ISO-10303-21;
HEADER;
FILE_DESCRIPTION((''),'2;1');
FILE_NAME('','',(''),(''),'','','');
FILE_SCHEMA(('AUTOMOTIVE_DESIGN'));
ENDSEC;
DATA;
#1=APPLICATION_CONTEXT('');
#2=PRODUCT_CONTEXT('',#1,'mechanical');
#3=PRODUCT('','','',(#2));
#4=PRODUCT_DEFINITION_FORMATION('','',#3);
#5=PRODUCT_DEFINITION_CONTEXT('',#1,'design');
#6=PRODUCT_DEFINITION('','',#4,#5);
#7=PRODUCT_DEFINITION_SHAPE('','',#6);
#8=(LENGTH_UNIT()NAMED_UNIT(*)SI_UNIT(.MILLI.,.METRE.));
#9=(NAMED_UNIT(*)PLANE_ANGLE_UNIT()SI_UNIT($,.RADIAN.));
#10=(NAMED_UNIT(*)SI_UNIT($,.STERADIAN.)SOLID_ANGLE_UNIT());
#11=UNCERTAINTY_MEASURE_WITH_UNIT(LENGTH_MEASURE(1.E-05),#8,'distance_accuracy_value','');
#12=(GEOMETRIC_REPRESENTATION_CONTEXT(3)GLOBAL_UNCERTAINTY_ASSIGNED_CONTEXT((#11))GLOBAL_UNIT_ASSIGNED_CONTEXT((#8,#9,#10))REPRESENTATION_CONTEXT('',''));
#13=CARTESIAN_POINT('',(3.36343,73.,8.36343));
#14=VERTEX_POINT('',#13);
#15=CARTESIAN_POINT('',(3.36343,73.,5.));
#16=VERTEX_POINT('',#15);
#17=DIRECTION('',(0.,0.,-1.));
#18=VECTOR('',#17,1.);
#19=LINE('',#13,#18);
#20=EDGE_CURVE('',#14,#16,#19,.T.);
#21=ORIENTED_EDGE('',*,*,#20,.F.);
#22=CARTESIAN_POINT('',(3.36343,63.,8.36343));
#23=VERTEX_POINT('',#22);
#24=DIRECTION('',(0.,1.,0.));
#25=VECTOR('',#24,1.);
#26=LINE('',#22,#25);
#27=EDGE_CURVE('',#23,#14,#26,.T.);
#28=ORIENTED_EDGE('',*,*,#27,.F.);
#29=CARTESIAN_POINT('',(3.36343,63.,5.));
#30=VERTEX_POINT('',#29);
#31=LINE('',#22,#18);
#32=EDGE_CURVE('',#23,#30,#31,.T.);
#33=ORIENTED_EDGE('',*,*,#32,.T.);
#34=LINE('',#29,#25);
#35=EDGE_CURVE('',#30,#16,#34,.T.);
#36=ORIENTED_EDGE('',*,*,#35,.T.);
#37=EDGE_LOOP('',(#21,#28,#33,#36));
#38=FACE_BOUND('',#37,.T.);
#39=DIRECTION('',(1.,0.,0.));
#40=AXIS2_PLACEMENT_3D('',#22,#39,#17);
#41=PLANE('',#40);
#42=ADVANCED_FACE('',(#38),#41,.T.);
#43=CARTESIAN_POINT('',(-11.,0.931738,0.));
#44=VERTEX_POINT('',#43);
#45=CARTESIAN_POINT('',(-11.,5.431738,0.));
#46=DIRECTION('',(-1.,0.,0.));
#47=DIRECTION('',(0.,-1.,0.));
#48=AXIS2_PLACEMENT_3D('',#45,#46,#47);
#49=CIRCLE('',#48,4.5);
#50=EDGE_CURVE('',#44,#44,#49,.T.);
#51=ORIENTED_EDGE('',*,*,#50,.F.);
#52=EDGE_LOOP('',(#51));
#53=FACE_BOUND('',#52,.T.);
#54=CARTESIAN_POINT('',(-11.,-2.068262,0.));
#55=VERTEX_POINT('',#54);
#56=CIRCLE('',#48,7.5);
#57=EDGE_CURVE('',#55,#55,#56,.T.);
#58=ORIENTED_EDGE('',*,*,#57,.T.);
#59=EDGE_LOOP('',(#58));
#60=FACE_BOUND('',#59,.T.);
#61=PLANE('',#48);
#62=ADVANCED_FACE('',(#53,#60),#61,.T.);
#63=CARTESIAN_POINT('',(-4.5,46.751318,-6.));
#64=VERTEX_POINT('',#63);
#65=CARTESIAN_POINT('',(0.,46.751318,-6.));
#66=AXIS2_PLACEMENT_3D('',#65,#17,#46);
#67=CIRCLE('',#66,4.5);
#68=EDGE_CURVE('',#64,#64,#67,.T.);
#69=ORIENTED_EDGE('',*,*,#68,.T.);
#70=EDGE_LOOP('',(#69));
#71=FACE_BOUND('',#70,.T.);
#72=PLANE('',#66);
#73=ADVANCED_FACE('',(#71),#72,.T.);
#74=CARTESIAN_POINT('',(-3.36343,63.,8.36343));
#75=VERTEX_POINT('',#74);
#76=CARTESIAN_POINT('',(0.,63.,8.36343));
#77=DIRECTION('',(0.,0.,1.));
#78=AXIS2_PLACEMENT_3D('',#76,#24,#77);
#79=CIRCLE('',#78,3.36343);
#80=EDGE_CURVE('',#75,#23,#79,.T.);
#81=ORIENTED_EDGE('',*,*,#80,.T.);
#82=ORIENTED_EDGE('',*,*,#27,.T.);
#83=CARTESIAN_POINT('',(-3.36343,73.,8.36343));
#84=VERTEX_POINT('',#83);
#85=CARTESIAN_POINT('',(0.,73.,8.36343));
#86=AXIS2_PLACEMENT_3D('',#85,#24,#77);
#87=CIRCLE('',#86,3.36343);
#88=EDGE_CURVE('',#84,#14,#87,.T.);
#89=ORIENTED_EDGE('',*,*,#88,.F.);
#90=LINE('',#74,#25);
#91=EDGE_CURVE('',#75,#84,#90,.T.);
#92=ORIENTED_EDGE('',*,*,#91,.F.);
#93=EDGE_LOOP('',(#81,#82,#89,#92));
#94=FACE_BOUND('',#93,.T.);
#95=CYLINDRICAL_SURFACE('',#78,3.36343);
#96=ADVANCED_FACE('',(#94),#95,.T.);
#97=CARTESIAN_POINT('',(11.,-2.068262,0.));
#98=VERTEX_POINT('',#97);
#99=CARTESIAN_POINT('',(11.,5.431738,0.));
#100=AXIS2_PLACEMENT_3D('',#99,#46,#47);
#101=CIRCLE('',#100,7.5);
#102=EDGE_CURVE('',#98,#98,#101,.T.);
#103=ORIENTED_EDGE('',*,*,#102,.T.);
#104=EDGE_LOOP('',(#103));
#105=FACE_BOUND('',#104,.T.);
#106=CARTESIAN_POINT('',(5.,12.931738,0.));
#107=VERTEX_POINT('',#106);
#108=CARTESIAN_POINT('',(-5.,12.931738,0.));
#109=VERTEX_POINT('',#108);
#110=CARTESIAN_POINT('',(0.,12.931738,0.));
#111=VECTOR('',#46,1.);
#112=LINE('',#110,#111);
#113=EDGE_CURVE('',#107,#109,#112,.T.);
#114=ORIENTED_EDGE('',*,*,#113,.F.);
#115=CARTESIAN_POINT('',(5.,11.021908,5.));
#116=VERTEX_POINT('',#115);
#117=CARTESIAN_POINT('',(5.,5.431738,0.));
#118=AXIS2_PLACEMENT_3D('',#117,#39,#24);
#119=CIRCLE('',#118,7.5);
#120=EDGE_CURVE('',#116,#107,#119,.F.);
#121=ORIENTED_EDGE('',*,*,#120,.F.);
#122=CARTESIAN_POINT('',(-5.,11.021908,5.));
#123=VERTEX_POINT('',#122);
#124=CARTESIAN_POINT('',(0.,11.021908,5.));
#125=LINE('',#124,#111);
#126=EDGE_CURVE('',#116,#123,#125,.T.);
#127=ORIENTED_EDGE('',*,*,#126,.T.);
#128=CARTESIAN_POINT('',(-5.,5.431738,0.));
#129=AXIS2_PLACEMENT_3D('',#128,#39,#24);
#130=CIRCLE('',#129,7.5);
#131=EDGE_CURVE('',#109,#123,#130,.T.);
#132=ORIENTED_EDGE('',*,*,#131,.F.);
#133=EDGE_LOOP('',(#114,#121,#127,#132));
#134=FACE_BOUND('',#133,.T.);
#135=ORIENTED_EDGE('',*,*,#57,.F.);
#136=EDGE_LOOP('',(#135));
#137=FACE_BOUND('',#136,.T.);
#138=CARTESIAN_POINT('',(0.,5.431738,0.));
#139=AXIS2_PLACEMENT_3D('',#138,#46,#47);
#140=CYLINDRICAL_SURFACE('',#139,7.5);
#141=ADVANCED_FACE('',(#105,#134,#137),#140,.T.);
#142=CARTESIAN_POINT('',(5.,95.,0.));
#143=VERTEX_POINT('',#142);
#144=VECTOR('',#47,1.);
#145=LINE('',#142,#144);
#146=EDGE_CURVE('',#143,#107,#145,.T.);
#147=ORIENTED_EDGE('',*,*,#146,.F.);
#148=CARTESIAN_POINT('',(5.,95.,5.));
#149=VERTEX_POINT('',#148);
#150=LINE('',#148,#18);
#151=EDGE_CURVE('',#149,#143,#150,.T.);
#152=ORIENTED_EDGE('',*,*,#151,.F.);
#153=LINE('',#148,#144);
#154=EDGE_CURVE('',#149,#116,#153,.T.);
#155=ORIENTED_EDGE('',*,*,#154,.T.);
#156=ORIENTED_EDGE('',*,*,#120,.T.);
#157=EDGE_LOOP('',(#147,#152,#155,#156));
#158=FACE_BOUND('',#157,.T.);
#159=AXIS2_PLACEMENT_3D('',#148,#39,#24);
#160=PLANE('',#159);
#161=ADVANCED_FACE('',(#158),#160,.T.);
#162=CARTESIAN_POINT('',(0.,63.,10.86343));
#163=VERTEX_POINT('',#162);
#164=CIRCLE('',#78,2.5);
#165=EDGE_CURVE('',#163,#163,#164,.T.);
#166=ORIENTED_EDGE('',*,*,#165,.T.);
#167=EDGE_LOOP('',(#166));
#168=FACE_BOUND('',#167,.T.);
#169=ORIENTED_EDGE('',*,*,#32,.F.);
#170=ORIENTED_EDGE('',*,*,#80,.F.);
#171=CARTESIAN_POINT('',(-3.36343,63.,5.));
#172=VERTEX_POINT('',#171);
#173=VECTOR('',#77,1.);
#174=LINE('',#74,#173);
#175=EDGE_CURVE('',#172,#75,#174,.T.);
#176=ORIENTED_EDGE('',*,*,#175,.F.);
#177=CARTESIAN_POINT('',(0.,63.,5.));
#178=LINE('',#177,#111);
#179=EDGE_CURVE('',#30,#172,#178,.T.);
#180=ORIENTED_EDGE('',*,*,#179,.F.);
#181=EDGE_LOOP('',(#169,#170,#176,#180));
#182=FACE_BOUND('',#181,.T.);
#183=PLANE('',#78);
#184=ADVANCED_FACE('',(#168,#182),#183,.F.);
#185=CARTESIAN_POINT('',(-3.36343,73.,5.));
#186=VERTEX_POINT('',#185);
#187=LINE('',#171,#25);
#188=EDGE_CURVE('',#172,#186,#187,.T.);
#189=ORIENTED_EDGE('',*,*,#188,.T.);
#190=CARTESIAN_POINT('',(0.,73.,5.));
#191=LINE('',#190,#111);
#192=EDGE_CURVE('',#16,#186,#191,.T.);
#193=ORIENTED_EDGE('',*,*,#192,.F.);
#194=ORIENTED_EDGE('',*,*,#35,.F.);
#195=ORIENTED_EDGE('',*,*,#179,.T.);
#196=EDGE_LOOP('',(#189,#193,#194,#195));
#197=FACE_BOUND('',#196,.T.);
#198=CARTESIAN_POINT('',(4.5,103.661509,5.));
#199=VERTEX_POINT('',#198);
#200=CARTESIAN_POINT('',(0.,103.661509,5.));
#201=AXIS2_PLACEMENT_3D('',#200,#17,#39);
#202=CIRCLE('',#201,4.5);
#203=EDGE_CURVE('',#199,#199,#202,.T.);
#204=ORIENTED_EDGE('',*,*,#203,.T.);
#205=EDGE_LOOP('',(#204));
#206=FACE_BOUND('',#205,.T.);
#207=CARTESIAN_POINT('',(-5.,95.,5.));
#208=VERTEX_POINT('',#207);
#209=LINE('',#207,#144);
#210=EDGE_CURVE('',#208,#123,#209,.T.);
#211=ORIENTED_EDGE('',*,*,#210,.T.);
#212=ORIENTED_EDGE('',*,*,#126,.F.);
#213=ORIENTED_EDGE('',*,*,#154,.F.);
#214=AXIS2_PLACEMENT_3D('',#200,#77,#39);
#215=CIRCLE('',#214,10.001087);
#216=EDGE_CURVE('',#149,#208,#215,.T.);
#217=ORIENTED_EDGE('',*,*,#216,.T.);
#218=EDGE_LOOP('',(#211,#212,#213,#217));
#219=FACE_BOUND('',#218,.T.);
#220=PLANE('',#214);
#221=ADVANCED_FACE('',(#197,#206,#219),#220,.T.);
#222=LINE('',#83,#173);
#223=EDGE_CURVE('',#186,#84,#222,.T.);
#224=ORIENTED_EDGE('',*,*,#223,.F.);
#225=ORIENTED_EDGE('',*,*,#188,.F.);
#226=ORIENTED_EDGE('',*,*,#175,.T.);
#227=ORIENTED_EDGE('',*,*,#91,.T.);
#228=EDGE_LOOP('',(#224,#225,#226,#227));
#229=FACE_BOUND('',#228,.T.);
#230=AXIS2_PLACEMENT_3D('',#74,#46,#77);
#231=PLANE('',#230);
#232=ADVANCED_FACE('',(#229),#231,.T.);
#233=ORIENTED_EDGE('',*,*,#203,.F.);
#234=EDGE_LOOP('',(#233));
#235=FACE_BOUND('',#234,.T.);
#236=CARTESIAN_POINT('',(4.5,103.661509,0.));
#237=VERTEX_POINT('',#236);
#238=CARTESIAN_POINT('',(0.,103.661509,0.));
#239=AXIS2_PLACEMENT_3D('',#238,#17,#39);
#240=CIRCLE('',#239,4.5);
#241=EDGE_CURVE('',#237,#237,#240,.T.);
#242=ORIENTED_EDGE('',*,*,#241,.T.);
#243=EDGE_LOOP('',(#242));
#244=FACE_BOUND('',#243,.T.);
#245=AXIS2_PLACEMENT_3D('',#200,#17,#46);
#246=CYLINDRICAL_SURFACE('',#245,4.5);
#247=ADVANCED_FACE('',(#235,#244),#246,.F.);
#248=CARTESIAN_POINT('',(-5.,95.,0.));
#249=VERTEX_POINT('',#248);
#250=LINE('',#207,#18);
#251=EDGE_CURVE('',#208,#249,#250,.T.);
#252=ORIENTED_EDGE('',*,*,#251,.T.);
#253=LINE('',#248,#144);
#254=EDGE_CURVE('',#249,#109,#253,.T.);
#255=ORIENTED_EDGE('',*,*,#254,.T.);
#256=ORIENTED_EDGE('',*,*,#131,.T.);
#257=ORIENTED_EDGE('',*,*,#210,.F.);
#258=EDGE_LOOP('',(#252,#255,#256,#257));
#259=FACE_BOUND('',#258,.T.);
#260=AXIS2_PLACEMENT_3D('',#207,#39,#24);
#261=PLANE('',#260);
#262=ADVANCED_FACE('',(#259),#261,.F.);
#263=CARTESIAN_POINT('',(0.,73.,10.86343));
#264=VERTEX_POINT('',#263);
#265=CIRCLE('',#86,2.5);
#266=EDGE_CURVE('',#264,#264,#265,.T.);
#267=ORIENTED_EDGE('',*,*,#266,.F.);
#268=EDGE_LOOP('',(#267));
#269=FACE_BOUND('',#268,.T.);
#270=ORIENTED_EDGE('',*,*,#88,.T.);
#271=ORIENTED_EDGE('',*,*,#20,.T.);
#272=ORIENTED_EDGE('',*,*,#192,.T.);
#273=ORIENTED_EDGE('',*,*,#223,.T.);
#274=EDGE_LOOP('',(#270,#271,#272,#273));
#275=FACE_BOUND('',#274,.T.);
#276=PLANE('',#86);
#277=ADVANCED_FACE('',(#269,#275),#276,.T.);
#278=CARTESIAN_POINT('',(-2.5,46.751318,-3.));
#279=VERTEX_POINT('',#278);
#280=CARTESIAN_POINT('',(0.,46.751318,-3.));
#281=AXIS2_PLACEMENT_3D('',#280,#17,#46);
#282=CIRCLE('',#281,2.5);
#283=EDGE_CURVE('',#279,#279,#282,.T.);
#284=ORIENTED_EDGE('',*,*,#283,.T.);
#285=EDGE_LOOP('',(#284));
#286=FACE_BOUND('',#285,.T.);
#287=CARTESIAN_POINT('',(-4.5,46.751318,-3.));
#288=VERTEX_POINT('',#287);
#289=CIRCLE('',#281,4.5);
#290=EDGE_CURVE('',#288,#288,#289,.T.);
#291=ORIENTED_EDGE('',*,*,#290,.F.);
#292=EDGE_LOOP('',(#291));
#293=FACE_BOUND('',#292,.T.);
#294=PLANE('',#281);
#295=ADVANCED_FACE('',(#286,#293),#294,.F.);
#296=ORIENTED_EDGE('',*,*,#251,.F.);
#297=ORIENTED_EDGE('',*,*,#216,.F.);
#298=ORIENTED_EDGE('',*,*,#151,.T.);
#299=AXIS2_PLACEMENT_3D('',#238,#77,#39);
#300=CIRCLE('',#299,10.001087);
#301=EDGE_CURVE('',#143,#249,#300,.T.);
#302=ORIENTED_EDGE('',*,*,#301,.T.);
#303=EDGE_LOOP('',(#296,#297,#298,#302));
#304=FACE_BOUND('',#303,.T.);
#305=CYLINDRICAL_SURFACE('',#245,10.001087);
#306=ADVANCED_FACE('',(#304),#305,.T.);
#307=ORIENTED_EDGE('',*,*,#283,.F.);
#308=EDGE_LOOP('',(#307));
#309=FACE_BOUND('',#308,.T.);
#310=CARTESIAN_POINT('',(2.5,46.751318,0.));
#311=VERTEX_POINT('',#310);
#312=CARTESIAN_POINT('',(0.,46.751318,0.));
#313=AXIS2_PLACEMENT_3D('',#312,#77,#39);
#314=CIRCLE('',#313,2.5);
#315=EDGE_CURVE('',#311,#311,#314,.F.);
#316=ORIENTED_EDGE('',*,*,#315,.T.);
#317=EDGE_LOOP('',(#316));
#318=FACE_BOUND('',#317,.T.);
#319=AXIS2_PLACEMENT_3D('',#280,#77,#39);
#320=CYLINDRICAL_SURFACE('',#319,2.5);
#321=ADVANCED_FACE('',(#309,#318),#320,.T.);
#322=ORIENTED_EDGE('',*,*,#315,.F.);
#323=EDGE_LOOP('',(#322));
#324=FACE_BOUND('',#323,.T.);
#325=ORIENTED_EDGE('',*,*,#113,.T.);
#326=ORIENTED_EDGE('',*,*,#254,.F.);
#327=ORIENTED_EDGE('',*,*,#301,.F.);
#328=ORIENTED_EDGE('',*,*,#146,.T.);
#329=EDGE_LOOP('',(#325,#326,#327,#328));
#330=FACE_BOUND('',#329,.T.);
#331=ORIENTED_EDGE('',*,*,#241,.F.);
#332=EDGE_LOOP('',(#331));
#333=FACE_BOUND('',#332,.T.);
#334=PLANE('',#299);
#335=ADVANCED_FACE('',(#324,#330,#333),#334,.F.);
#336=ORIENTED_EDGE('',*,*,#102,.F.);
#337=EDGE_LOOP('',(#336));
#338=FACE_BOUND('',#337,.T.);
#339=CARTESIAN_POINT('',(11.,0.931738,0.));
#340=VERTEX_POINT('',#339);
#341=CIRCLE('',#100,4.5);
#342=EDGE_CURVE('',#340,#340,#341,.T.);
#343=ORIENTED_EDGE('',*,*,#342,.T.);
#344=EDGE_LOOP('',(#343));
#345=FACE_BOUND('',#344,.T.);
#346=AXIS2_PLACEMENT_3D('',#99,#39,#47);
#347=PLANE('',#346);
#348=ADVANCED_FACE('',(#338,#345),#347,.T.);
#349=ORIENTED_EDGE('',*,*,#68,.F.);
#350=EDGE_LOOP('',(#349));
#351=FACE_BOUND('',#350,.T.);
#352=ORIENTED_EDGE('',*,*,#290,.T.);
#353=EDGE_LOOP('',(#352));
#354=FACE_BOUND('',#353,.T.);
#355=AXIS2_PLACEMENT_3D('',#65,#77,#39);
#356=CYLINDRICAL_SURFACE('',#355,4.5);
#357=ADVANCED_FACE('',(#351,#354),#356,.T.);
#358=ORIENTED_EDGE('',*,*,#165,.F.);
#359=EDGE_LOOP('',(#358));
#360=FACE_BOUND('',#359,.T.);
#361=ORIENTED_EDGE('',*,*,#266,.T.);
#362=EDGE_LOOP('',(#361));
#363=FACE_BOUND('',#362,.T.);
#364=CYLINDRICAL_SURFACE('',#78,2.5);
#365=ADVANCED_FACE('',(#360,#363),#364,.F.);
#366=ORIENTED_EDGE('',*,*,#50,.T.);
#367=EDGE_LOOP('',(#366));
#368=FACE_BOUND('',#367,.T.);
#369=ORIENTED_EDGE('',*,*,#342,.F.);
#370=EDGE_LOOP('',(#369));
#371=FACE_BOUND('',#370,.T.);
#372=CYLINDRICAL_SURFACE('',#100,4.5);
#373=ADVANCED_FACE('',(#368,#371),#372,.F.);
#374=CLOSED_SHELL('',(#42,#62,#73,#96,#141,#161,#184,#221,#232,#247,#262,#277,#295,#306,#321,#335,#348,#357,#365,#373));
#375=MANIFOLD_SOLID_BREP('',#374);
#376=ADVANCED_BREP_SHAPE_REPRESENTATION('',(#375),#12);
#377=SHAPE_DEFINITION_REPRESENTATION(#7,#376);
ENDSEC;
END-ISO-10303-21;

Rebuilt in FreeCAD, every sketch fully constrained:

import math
import FreeCAD as App
import Part
import Sketcher

V = App.Vector
Q = App.Units.Quantity

doc = App.newDocument("Part")
body = doc.addObject("PartDesign::Body", "Body")

sketch1 = body.newObject("Sketcher::SketchObject", "Sketch")
sketch1.AttachmentSupport = (doc.getObject("XY_Plane"), [""])
sketch1.MapMode = "FlatFace"
sketch1.addGeometry([
    Part.LineSegment(V(-5, 95, 0), V(-5, 0, 0)),
    Part.LineSegment(V(-5, 0, 0), V(0, 0, 0)),
    Part.LineSegment(V(0, 0, 0), V(0, 99.2, 0)),
    Part.ArcOfCircle(Part.Circle(V(0, 103.7, 0), V(0, 0, 1), 4.5), math.radians(90), math.radians(270)),
    Part.LineSegment(V(0, 108.2, 0), V(0, 113.7, 0)),
    Part.ArcOfCircle(Part.Circle(V(0, 103.7, 0), V(0, 0, 1), 10), math.radians(90), math.radians(240)),
], False)
sketch1.addConstraint([
    Sketcher.Constraint("Coincident", 0, 2, 1, 1),
    Sketcher.Constraint("Coincident", 1, 2, 2, 1),
    Sketcher.Constraint("Coincident", 2, 2, 3, 2),
    Sketcher.Constraint("Coincident", 3, 1, 4, 1),
    Sketcher.Constraint("Coincident", 4, 2, 5, 1),
    Sketcher.Constraint("Coincident", 5, 2, 0, 1),
    Sketcher.Constraint("Vertical", 0),
    Sketcher.Constraint("Horizontal", 1),
    Sketcher.Constraint("Vertical", 2),
    Sketcher.Constraint("Vertical", 4),
    Sketcher.Constraint("Coincident", 1, 2, -1, 1),
    Sketcher.Constraint("Coincident", 5, 3, 3, 3),
    Sketcher.Constraint("PointOnObject", 3, 3, -2),
    Sketcher.Constraint("PointOnObject", 3, 1, -2),
    Sketcher.Constraint("Radius", 3, Q("4.5 mm")),
    Sketcher.Constraint("DistanceX", 1, 1, 1, 2, Q("5 mm")),
    Sketcher.Constraint("DistanceY", 0, 2, 0, 1, Q("95 mm")),
    Sketcher.Constraint("Radius", 5, Q("10.001087 mm")),
])
pad1 = body.newObject("PartDesign::Pad", "Pad")
pad1.Profile = sketch1
pad1.Length = 5

sketch2 = body.newObject("Sketcher::SketchObject", "Sketch001")
sketch2.AttachmentSupport = (doc.getObject("YZ_Plane"), [""])
sketch2.MapMode = "FlatFace"
sketch2.addGeometry(Part.Circle(V(5, 0, 0), V(0, 0, 1), 8), False)
sketch2.addConstraint([
    Sketcher.Constraint("PointOnObject", 0, 3, -1),
    Sketcher.Constraint("Diameter", 0, Q("15 mm")),
    Sketcher.Constraint("DistanceX", -1, 1, 0, 3, Q("5.431738 mm")),
])
pad2 = body.newObject("PartDesign::Pad", "Pad001")
pad2.Profile = sketch2
pad2.Length = 11
pad2.Reversed = True

sketch3 = body.newObject("Sketcher::SketchObject", "Sketch002")
sketch3.AttachmentSupport = (doc.getObject("XY_Plane"), [""])
sketch3.MapMode = "FlatFace"
sketch3.addGeometry(Part.Circle(V(0, 46.8, 0), V(0, 0, 1), 2.5), False)
sketch3.addConstraint([
    Sketcher.Constraint("PointOnObject", 0, 3, -2),
    Sketcher.Constraint("Diameter", 0, Q("5 mm")),
    Sketcher.Constraint("DistanceY", -1, 1, 0, 3, Q("46.751318 mm")),
])
pad3 = body.newObject("PartDesign::Pad", "Pad002")
pad3.Profile = sketch3
pad3.Length = 3
pad3.Reversed = True

sketch4 = body.newObject("Sketcher::SketchObject", "Sketch003")
sketch4.AttachmentSupport = (doc.getObject("XY_Plane"), [""])
sketch4.MapMode = "FlatFace"
sketch4.AttachmentOffset = App.Placement(V(0, 0, -3), App.Rotation())
sketch4.addGeometry(Part.Circle(V(0, 46.8, 0), V(0, 0, 1), 4.5), False)
sketch4.addConstraint([
    Sketcher.Constraint("PointOnObject", 0, 3, -2),
    Sketcher.Constraint("Diameter", 0, Q("9 mm")),
    Sketcher.Constraint("DistanceY", -1, 1, 0, 3, Q("46.751318 mm")),
])
pad4 = body.newObject("PartDesign::Pad", "Pad003")
pad4.Profile = sketch4
pad4.Length = 3
pad4.Reversed = True

sketch5 = body.newObject("Sketcher::SketchObject", "Sketch004")
sketch5.AttachmentSupport = (doc.getObject("XZ_Plane"), [""])
sketch5.MapMode = "FlatFace"
sketch5.AttachmentOffset = App.Placement(V(0, 0, -65), App.Rotation())
sketch5.addGeometry([
    Part.LineSegment(V(-3.4, 5, 0), V(-3.4, 8.4, 0)),
    Part.ArcOfCircle(Part.Circle(V(0, 8.4, 0), V(0, 0, 1), 3.4), math.radians(0), math.radians(180)),
    Part.LineSegment(V(3.4, 8.4, 0), V(3.4, 5, 0)),
    Part.LineSegment(V(3.4, 5, 0), V(-3.4, 5, 0)),
    Part.Circle(V(0, 8.4, 0), V(0, 0, 1), 2.5),
], False)
sketch5.addConstraint([
    Sketcher.Constraint("Tangent", 0, 2, 1, 2),
    Sketcher.Constraint("Tangent", 1, 1, 2, 1),
    Sketcher.Constraint("Coincident", 2, 2, 3, 1),
    Sketcher.Constraint("Coincident", 3, 2, 0, 1),
    Sketcher.Constraint("Vertical", 0),
    Sketcher.Constraint("Vertical", 2),
    Sketcher.Constraint("Horizontal", 3),
    Sketcher.Constraint("Coincident", 4, 3, 1, 3),
    Sketcher.Constraint("PointOnObject", 1, 3, -2),
    Sketcher.Constraint("Diameter", 4, Q("5 mm")),
    Sketcher.Constraint("DistanceY", -1, 1, 2, 2, Q("5 mm")),
    Sketcher.Constraint("Radius", 1, Q("3.36343 mm")),
    Sketcher.Constraint("DistanceY", 0, 1, 0, 2, Q("3.36343 mm")),
])
pad5 = body.newObject("PartDesign::Pad", "Pad004")
pad5.Profile = sketch5
pad5.Type = "TwoLengths"
pad5.Length = 8
pad5.Length2 = 2
pad5.Reversed = True
doc.recompute()

mirrored = body.newObject("PartDesign::Mirrored", "Mirrored")
mirrored.Originals = [pad1, pad2]
mirrored.MirrorPlane = (doc.getObject("YZ_Plane"), [""])
body.Tip = mirrored

sketch6 = body.newObject("Sketcher::SketchObject", "Sketch005")
sketch6.AttachmentSupport = (doc.getObject("YZ_Plane"), [""])
sketch6.MapMode = "FlatFace"
sketch6.AttachmentOffset = App.Placement(V(0, 0, -11), App.Rotation())
sketch6.addGeometry(Part.Circle(V(5.4, 0, 0), V(0, 0, 1), 4.5), False)
sketch6.addConstraint([
    Sketcher.Constraint("PointOnObject", 0, 3, -1),
    Sketcher.Constraint("Diameter", 0, Q("9 mm")),
    Sketcher.Constraint("DistanceX", -1, 1, 0, 3, Q("5.431738 mm")),
])
pocket1 = body.newObject("PartDesign::Pocket", "Pocket")
pocket1.Profile = sketch6
pocket1.Type = "ThroughAll"
pocket1.Reversed = True

doc.recompute()
